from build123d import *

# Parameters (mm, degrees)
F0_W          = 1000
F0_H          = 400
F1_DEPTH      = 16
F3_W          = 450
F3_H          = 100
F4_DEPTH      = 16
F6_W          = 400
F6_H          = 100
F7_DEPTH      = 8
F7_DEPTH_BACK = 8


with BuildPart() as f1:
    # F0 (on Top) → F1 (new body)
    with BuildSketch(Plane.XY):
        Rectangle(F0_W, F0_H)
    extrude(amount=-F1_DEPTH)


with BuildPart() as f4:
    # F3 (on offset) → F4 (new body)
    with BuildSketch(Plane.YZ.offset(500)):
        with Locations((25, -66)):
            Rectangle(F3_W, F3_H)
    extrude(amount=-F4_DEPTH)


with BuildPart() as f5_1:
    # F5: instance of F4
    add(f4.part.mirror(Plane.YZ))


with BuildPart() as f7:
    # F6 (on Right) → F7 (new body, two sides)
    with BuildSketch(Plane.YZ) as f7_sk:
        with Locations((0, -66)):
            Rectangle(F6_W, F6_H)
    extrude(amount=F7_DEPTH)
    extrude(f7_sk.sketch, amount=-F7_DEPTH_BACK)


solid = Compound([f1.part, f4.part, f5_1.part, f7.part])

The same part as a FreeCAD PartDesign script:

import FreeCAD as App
import Part
import Sketcher

V = App.Vector
Q = App.Units.Quantity


def add_polygon(sketch, points):
    """Adds a closed chain of lines whose ends are joined by coincident constraints."""
    first, n = sketch.GeometryCount, len(points)
    for a, b in zip(points, points[1:] + points[:1]):
        sketch.addGeometry(Part.LineSegment(App.Vector(*a, 0), App.Vector(*b, 0)), False)
    for i in range(n):
        sketch.addConstraint(Sketcher.Constraint("Coincident", first + i, 2, first + (i + 1) % n, 1))

doc = App.newDocument("Part")
body = doc.addObject("PartDesign::Body", "Body")

sketch1 = body.newObject("Sketcher::SketchObject", "Sketch")
sketch1.AttachmentSupport = (doc.getObject("XY_Plane"), [""])
sketch1.MapMode = "FlatFace"
add_polygon(sketch1, [(-500, 200), (-500, -200), (500, -200), (500, 200)])
sketch1.addConstraint(Sketcher.Constraint("Vertical", 0))
sketch1.addConstraint(Sketcher.Constraint("Horizontal", 1))
sketch1.addConstraint(Sketcher.Constraint("Vertical", 2))
sketch1.addConstraint(Sketcher.Constraint("Horizontal", 3))
sketch1.addConstraint(Sketcher.Constraint("Symmetric", 0, 2, 2, 2, -1, 1))
sketch1.addConstraint(Sketcher.Constraint("DistanceX", 1, 1, 1, 2, Q("1000 mm")))
sketch1.addConstraint(Sketcher.Constraint("DistanceY", 0, 2, 0, 1, Q("400 mm")))
pad1 = body.newObject("PartDesign::Pad", "Pad")
pad1.Profile = sketch1
pad1.Length = 16
pad1.Reversed = True
body2 = doc.addObject("PartDesign::Body", "Body001")

sketch2 = body2.newObject("Sketcher::SketchObject", "Sketch001")
sketch2.AttachmentSupport = (doc.getObject("YZ_Plane001"), [""])
sketch2.MapMode = "FlatFace"
sketch2.AttachmentOffset = App.Placement(V(0, 0, 500), App.Rotation())
add_polygon(sketch2, [(-200, -16), (-200, -116), (250, -116), (250, -16)])
sketch2.addConstraint(Sketcher.Constraint("Vertical", 0))
sketch2.addConstraint(Sketcher.Constraint("Horizontal", 1))
sketch2.addConstraint(Sketcher.Constraint("Vertical", 2))
sketch2.addConstraint(Sketcher.Constraint("Horizontal", 3))
sketch2.addConstraint(Sketcher.Constraint("DistanceX", 1, 1, 1, 2, Q("450 mm")))
sketch2.addConstraint(Sketcher.Constraint("DistanceY", 0, 2, 0, 1, Q("100 mm")))
sketch2.addConstraint(Sketcher.Constraint("DistanceX", 0, 2, -1, 1, Q("200 mm")))
sketch2.addConstraint(Sketcher.Constraint("DistanceY", 0, 2, -1, 1, Q("116 mm")))
pad2 = body2.newObject("PartDesign::Pad", "Pad001")
pad2.Profile = sketch2
pad2.Length = 16
pad2.Reversed = True
body3 = doc.addObject("PartDesign::Body", "Body002")
doc.recompute()

mirroring = doc.addObject("Part::Mirroring", "Mirroring")
mirroring.Source = body2
mirroring.Base = V(0, 0, 0)
mirroring.Normal = V(1, 0, 0)
body3.BaseFeature = mirroring
doc.recompute()
body4 = doc.addObject("PartDesign::Body", "Body003")

sketch3 = body4.newObject("Sketcher::SketchObject", "Sketch002")
sketch3.AttachmentSupport = (doc.getObject("YZ_Plane003"), [""])
sketch3.MapMode = "FlatFace"
add_polygon(sketch3, [(-200, -16), (-200, -116), (200, -116), (200, -16)])
sketch3.addConstraint(Sketcher.Constraint("Vertical", 0))
sketch3.addConstraint(Sketcher.Constraint("Horizontal", 1))
sketch3.addConstraint(Sketcher.Constraint("Vertical", 2))
sketch3.addConstraint(Sketcher.Constraint("Horizontal", 3))
sketch3.addConstraint(Sketcher.Constraint("DistanceX", 1, 1, 1, 2, Q("400 mm")))
sketch3.addConstraint(Sketcher.Constraint("DistanceY", 0, 2, 0, 1, Q("100 mm")))
sketch3.addConstraint(Sketcher.Constraint("DistanceX", 0, 2, -1, 1, Q("200 mm")))
sketch3.addConstraint(Sketcher.Constraint("DistanceY", 0, 2, -1, 1, Q("116 mm")))
pad3 = body4.newObject("PartDesign::Pad", "Pad002")
pad3.Profile = sketch3
pad3.Type = "TwoLengths"
pad3.Length = 8
pad3.Length2 = 8
mirroring.Visibility = False

doc.recompute()
